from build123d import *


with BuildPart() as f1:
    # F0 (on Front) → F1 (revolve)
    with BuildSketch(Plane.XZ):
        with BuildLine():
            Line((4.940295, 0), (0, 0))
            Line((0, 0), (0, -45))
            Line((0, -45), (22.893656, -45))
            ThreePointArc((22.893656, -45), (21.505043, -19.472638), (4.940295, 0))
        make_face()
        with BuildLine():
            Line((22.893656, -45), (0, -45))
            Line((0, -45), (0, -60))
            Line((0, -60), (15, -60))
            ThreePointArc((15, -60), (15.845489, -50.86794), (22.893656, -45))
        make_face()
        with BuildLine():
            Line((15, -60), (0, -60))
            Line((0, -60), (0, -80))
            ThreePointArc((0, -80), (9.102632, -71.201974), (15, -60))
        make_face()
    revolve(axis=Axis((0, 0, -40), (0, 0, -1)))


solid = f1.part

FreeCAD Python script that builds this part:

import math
import FreeCAD as App
import Part
import Sketcher

doc = App.newDocument("Part")
body = doc.addObject("PartDesign::Body", "Body")

sketch1 = body.newObject("Sketcher::SketchObject", "Sketch")
sketch1.AttachmentSupport = (doc.getObject("XZ_Plane"), [""])
sketch1.MapMode = "FlatFace"
sketch1.addGeometry([
    Part.LineSegment(App.Vector(4.9, 0, 0), App.Vector(0, 0, 0)),
    Part.LineSegment(App.Vector(0, 0, 0), App.Vector(0, -80, 0)),
    Part.ArcOfCircle(Part.Circle(App.Vector(-22.9, -47.2, 0), App.Vector(0, 0, 1), 40), math.radians(-55), math.radians(-19)),
    Part.ArcOfCircle(Part.Circle(App.Vector(26.5, -56.5, 0), App.Vector(0, 0, 1), 12), math.radians(107), math.radians(197)),
    Part.ArcOfCircle(Part.Circle(App.Vector(-15.6, -34.3, 0), App.Vector(0, 0, 1), 40), math.radians(-16), math.radians(59)),
], False)
sketch1.addConstraint([
    Sketcher.Constraint("Coincident", 0, 2, 1, 1),
    Sketcher.Constraint("Coincident", 1, 2, 2, 1),
    Sketcher.Constraint("Coincident", 2, 2, 3, 2),
    Sketcher.Constraint("Coincident", 3, 1, 4, 1),
    Sketcher.Constraint("Coincident", 4, 2, 0, 1),
    Sketcher.Constraint("Horizontal", 0),
    Sketcher.Constraint("Vertical", 1),
    Sketcher.Constraint("Coincident", 0, 2, -1, 1),
    Sketcher.Constraint("Radius", 3, 11.999999),
    Sketcher.Constraint("Radius", 4, 40.0),
    Sketcher.Constraint("DistanceY", 1, 2, 1, 1, 80.0),
    Sketcher.Constraint("DistanceX", -1, 1, 2, 2, 15.0),
    Sketcher.Constraint("DistanceY", 2, 2, -1, 1, 60.0),
    Sketcher.Constraint("DistanceY", 3, 1, -1, 1, 45.0),
    Sketcher.Constraint("Radius", 2, 39.999993),
    Sketcher.Constraint("DistanceX", 0, 2, 0, 1, 4.940295),
    Sketcher.Constraint("DistanceY", 3, 3, 2, 3, 9.254319),
])
revolution = body.newObject("PartDesign::Revolution", "Revolution")
revolution.Profile = sketch1
revolution.ReferenceAxis = (sketch1, ["V_Axis"])
revolution.Angle = 360

doc.recompute()
